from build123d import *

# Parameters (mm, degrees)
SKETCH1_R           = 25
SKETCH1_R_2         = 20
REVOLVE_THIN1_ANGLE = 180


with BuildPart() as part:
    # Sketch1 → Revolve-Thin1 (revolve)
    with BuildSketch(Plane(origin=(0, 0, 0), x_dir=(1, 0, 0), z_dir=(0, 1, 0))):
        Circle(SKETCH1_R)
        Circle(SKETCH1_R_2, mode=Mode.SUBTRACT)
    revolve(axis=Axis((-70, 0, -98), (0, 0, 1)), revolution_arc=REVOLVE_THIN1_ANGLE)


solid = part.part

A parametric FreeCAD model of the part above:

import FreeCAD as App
import Part
import Sketcher
from FreeCAD import Vector
Q = App.Units.Quantity

doc = App.newDocument("Part")
body = doc.addObject("PartDesign::Body", "Body")

# Sketch on XZ plane
sketch1 = doc.addObject("Sketcher::SketchObject", "Sketch")
body.addObject(sketch1)
sketch1.AttachmentSupport = (doc.XZ_Plane, [""])
sketch1.MapMode = "FlatFace"
sketch1.addGeometry([
    Part.Circle(Vector(0, 0, 0), Vector(0, 0, 1), 25),
    Part.Circle(Vector(0, 0, 0), Vector(0, 0, 1), 20),
], False)
sketch1.addGeometry(Part.LineSegment(Vector(-70, 0, 0), Vector(-70, 10, 0)), True)  # axis
sketch1.addConstraint([
    Sketcher.Constraint("Vertical", 2),
    Sketcher.Constraint("Coincident", 0, 3, -1, 1),
    Sketcher.Constraint("Coincident", 1, 3, -1, 1),
    Sketcher.Constraint("PointOnObject", 2, 1, -1),
    Sketcher.Constraint("Diameter", 0, Q("50 mm")),
    Sketcher.Constraint("Diameter", 1, Q("40 mm")),
    Sketcher.Constraint("DistanceY", 2, 1, 2, 2, Q("10 mm")),
    Sketcher.Constraint("DistanceX", 2, 1, -1, 1, Q("70 mm")),
])
revolution = doc.addObject("PartDesign::Revolution", "Revolution")
body.addObject(revolution)
revolution.Profile = sketch1
revolution.ReferenceAxis = (sketch1, ["Axis0"])
revolution.Angle = 180

doc.recompute()
